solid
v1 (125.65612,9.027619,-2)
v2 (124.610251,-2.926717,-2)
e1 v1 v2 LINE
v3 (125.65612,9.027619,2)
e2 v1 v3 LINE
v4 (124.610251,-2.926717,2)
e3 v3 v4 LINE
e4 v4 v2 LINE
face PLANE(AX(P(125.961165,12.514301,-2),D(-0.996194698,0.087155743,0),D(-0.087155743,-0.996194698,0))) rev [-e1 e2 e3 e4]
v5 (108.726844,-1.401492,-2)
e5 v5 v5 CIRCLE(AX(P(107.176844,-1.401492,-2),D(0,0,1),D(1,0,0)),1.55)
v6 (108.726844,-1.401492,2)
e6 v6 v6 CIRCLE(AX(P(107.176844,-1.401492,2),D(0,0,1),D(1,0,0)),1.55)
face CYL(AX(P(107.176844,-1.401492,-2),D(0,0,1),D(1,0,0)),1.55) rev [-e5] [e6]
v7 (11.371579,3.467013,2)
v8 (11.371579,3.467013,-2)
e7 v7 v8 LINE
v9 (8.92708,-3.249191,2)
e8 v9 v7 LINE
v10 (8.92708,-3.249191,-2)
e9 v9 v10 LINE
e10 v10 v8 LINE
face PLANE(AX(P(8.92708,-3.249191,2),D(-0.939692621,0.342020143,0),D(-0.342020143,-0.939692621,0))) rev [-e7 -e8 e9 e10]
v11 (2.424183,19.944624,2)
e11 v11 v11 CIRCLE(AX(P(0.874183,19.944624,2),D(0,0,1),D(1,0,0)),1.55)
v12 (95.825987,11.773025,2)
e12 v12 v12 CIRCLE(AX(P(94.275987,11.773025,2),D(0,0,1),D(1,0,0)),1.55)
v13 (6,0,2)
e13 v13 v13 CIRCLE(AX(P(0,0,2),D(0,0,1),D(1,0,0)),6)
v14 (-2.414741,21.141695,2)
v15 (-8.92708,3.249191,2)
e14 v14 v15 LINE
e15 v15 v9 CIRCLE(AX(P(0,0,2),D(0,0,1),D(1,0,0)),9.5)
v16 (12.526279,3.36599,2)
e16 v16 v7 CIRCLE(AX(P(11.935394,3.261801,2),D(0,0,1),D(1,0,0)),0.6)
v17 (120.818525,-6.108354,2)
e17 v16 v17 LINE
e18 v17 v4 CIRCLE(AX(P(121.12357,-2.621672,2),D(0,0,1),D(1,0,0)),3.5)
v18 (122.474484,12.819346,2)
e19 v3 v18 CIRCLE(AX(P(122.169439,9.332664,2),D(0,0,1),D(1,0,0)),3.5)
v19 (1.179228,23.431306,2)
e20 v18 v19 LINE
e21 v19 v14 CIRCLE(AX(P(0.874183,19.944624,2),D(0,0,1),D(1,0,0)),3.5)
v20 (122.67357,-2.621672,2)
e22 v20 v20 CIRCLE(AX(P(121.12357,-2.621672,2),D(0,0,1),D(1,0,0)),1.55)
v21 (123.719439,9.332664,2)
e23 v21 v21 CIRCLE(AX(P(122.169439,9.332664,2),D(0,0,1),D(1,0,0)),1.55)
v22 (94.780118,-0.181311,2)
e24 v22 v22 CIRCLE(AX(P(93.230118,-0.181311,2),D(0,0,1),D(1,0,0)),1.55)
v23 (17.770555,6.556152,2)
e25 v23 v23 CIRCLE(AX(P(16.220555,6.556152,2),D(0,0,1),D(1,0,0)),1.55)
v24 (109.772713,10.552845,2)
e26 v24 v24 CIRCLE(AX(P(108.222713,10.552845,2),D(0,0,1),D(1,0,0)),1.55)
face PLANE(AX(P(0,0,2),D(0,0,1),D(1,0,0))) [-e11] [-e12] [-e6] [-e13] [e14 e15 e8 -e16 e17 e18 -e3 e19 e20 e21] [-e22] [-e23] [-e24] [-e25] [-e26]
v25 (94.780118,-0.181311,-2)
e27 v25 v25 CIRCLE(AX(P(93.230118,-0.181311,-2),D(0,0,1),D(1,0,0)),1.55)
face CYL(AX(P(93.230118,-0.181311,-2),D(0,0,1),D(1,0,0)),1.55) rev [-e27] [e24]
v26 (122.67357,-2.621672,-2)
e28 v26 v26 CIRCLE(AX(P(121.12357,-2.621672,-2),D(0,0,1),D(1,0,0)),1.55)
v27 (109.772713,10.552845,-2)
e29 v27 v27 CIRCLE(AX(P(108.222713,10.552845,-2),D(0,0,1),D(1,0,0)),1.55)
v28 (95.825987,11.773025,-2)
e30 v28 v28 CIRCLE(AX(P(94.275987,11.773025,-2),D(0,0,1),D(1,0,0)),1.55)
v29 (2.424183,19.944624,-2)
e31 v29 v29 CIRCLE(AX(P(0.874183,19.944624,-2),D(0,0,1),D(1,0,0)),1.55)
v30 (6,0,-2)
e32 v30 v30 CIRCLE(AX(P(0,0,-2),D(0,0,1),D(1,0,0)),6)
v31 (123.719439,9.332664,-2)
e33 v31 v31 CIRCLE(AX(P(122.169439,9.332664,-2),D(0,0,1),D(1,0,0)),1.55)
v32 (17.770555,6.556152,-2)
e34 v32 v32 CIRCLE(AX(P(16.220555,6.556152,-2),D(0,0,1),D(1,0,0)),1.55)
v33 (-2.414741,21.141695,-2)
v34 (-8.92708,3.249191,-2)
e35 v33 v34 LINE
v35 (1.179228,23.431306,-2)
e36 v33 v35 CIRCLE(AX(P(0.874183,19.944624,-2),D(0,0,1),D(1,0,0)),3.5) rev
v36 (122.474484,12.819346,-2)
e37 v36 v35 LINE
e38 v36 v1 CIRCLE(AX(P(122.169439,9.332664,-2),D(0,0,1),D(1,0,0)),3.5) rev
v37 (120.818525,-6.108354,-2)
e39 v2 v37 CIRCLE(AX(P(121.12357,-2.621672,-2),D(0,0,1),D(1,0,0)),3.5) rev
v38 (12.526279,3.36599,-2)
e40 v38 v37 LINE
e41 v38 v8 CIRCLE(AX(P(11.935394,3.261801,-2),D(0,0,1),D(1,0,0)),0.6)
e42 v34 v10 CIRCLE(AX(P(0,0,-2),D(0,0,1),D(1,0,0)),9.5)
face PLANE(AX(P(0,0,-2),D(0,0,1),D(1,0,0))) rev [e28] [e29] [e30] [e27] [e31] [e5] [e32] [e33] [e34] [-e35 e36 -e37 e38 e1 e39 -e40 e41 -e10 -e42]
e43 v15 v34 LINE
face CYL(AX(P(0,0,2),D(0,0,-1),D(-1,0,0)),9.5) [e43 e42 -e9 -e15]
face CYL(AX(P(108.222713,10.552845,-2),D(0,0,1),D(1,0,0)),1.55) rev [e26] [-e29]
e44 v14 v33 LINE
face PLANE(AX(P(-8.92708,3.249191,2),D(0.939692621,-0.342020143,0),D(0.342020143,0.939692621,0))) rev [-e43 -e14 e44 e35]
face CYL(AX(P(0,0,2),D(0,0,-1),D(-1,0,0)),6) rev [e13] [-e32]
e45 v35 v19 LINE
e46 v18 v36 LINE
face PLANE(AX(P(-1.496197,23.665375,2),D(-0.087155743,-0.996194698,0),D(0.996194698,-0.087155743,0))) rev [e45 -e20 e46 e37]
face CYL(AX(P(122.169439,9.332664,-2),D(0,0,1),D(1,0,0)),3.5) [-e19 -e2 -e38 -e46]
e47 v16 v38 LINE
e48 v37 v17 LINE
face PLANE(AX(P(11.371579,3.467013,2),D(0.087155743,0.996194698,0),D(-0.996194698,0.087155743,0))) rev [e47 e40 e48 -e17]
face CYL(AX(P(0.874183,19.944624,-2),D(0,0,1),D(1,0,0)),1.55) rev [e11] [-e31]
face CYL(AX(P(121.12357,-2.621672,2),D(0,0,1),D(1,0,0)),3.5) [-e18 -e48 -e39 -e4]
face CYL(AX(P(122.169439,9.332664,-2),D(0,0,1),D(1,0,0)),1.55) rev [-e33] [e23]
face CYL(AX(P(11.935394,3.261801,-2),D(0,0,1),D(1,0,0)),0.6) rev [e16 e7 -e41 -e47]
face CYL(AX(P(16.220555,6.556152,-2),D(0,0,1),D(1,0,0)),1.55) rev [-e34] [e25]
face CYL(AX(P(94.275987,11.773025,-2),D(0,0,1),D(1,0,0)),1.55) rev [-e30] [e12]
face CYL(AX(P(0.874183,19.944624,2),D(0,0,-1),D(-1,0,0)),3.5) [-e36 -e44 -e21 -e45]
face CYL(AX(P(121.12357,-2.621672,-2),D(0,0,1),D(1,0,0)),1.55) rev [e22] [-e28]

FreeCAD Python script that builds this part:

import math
import FreeCAD as App
import Part
import Sketcher
from FreeCAD import Vector
Q = App.Units.Quantity


def edges_at(feature, points):
    """Names of the edges that pass closest to the given points."""
    edges = feature.Shape.Edges
    near = lambda p: min(range(len(edges)), key=lambda i: edges[i].distToShape(Part.Vertex(*p))[0])
    return sorted({f"Edge{near(p) + 1}" for p in points})

doc = App.newDocument("Part")
body = doc.addObject("PartDesign::Body", "Body")

# Sketch on XY plane
sketch1 = body.newObject("Sketcher::SketchObject", "Sketch")
sketch1.AttachmentSupport = (doc.getObject("XY_Plane"), [""])
sketch1.MapMode = "FlatFace"
sketch1.addGeometry(Part.LineSegment(Vector(-1, 24, 0), Vector(-9, 3, 0)), False)
sketch1.addGeometry(Part.ArcOfCircle(Part.Circle(Vector(0, 0, 0), Vector(0, 0, 1), 10), math.radians(160), math.radians(340)), False)
sketch1.addGeometry(Part.LineSegment(Vector(9, -3, 0), Vector(11, 3, 0)), False)
sketch1.addGeometry(Part.LineSegment(Vector(11, 3, 0), Vector(159, -9, 0)), False)
sketch1.addGeometry(Part.ArcOfCircle(Part.Circle(Vector(160, 0, 0), Vector(0, 0, 1), 10), math.radians(-95), math.radians(85)), False)
sketch1.addGeometry(Part.LineSegment(Vector(161, 9, 0), Vector(-1, 24, 0)), False)
sketch1.addGeometry(Part.Circle(Vector(160, 0, 0), Vector(0, 0, 1), 6), False)
sketch1.addGeometry(Part.Circle(Vector(0, 0, 0), Vector(0, 0, 1), 6), False)
sketch1.addConstraint(Sketcher.Constraint("Tangent", 0, 2, 1, 1))
sketch1.addConstraint(Sketcher.Constraint("Tangent", 1, 2, 2, 1))
sketch1.addConstraint(Sketcher.Constraint("Coincident", 2, 2, 3, 1))
sketch1.addConstraint(Sketcher.Constraint("Tangent", 3, 2, 4, 1))
sketch1.addConstraint(Sketcher.Constraint("Tangent", 4, 2, 5, 1))
sketch1.addConstraint(Sketcher.Constraint("Coincident", 5, 2, 0, 1))
sketch1.addConstraint(Sketcher.Constraint("Coincident", 1, 3, -1, 1))
sketch1.addConstraint(Sketcher.Constraint("Coincident", 7, 3, -1, 1))
sketch1.addConstraint(Sketcher.Constraint("Coincident", 6, 3, 4, 3))
sketch1.addConstraint(Sketcher.Constraint("Equal", 1, 4))
sketch1.addConstraint(Sketcher.Constraint("Equal", 6, 7))
sketch1.addConstraint(Sketcher.Constraint("PointOnObject", 4, 3, -1))
sketch1.addConstraint(Sketcher.Constraint("Parallel", 0, 2))
sketch1.addConstraint(Sketcher.Constraint("Parallel", 3, 5))
sketch1.addConstraint(Sketcher.Constraint("Diameter", 6, Q("12 mm")))
sketch1.addConstraint(Sketcher.Constraint("Radius", 1, Q("9.5 mm")))
sketch1.addConstraint(Sketcher.Constraint("Angle", 0, Q("-110 deg")))
sketch1.addConstraint(Sketcher.Constraint("Angle", 3, Q("-5 deg")))
sketch1.addConstraint(Sketcher.Constraint("DistanceX", -1, 1, 4, 3, Q("160 mm")))
pad1 = body.newObject("PartDesign::Pad", "Pad")
pad1.Profile = sketch1
pad1.Length = 4
pad1.Midplane = True

# Sketch on XY plane
sketch2 = body.newObject("Sketcher::SketchObject", "Sketch001")
sketch2.AttachmentSupport = (doc.getObject("XY_Plane"), [""])
sketch2.MapMode = "FlatFace"
sketch2.AttachmentOffset = App.Placement(Vector(0, 0, 2), App.Rotation())
sketch2.addGeometry(Part.Circle(Vector(0.9, 19.9, 0), Vector(0, 0, 1), 1.6), False)
sketch2.addGeometry(Part.Circle(Vector(16.2, 6.6, 0), Vector(0, 0, 1), 1.6), False)
sketch2.addGeometry(Part.Circle(Vector(11.9, 3.3, 0), Vector(0, 0, 1), 0.6), False)
sketch2.addConstraint(Sketcher.Constraint("Equal", 0, 1))
sketch2.addConstraint(Sketcher.Constraint("Diameter", 0, Q("3.1 mm")))
sketch2.addConstraint(Sketcher.Constraint("Diameter", 2, Q("1.2 mm")))
sketch2.addConstraint(Sketcher.Constraint("DistanceY", -1, 1, 2, 3, Q("3.261801 mm")))
sketch2.addConstraint(Sketcher.Constraint("DistanceY", 1, 3, 0, 3, Q("13.388472 mm")))
sketch2.addConstraint(Sketcher.Constraint("DistanceX", 2, 3, 1, 3, Q("4.285161 mm")))
sketch2.addConstraint(Sketcher.Constraint("DistanceY", 2, 3, 1, 3, Q("3.294351 mm")))
sketch2.addConstraint(Sketcher.Constraint("DistanceX", 0, 3, 2, 3, Q("11.061211 mm")))
sketch2.addConstraint(Sketcher.Constraint("DistanceX", -1, 1, 0, 3, Q("0.874183 mm")))
pocket1 = body.newObject("PartDesign::Pocket", "Pocket")
pocket1.Profile = sketch2
pocket1.Type = "ThroughAll"
doc.recompute()

fillet = body.newObject("PartDesign::Fillet", "Fillet")
fillet.Base = (pocket1, edges_at(pocket1, [(-1.496, 23.665, 0)]))
fillet.Radius = 3.5

# Sketch on XY plane
sketch3 = body.newObject("Sketcher::SketchObject", "Sketch002")
sketch3.AttachmentSupport = (doc.getObject("XY_Plane"), [""])
sketch3.MapMode = "FlatFace"
sketch3.AttachmentOffset = App.Placement(Vector(0, 0, 2), App.Rotation())
sketch3.addGeometry(Part.LineSegment(Vector(126, 13, 0), Vector(124, -6, 0)), False)
sketch3.addGeometry(Part.LineSegment(Vector(124, -6, 0), Vector(159, -9, 0)), False)
sketch3.addGeometry(Part.ArcOfCircle(Part.Circle(Vector(160, 0, 0), Vector(0, 0, 1), 10), math.radians(-95), math.radians(85)), False)
sketch3.addGeometry(Part.LineSegment(Vector(161, 9, 0), Vector(126, 13, 0)), False)
sketch3.addConstraint(Sketcher.Constraint("Coincident", 0, 2, 1, 1))
sketch3.addConstraint(Sketcher.Constraint("Tangent", 1, 2, 2, 1))
sketch3.addConstraint(Sketcher.Constraint("Tangent", 2, 2, 3, 1))
sketch3.addConstraint(Sketcher.Constraint("Coincident", 3, 2, 0, 1))
sketch3.addConstraint(Sketcher.Constraint("PointOnObject", 2, 3, -1))
sketch3.addConstraint(Sketcher.Constraint("Perpendicular", 0, 1))
sketch3.addConstraint(Sketcher.Constraint("Parallel", 1, 3))
sketch3.addConstraint(Sketcher.Constraint("Radius", 2, Q("9.5 mm")))
sketch3.addConstraint(Sketcher.Constraint("Angle", 0, Q("-95 deg")))
sketch3.addConstraint(Sketcher.Constraint("Distance", 1, Q("35 mm")))
sketch3.addConstraint(Sketcher.Constraint("DistanceX", -1, 1, 2, 3, Q("160 mm")))
pocket2 = body.newObject("PartDesign::Pocket", "Pocket001")
pocket2.Profile = sketch3
pocket2.Type = "ThroughAll"

# Sketch on XY plane
sketch4 = body.newObject("Sketcher::SketchObject", "Sketch003")
sketch4.AttachmentSupport = (doc.getObject("XY_Plane"), [""])
sketch4.MapMode = "FlatFace"
sketch4.AttachmentOffset = App.Placement(Vector(0, 0, 2), App.Rotation())
sketch4.addGeometry(Part.Circle(Vector(122.2, 9.3, 0), Vector(0, 0, 1), 1.6), False)
sketch4.addGeometry(Part.Circle(Vector(121.1, -2.6, 0), Vector(0, 0, 1), 1.6), False)
sketch4.addGeometry(Part.Circle(Vector(94.3, 11.8, 0), Vector(0, 0, 1), 1.6), False)
sketch4.addGeometry(Part.Circle(Vector(93.2, -0.2, 0), Vector(0, 0, 1), 1.6), False)
sketch4.addGeometry(Part.Circle(Vector(108.2, 10.6, 0), Vector(0, 0, 1), 1.6), False)
sketch4.addGeometry(Part.Circle(Vector(107.2, -1.4, 0), Vector(0, 0, 1), 1.6), False)
sketch4.addConstraint(Sketcher.Constraint("Equal", 0, 1))
sketch4.addConstraint(Sketcher.Constraint("Equal", 1, 2))
sketch4.addConstraint(Sketcher.Constraint("Equal", 2, 3))
sketch4.addConstraint(Sketcher.Constraint("Equal", 3, 4))
sketch4.addConstraint(Sketcher.Constraint("Equal", 4, 5))
sketch4.addConstraint(Sketcher.Constraint("Diameter", 0, Q("3.1 mm")))
sketch4.addConstraint(Sketcher.Constraint("DistanceX", -1, 1, 0, 3, Q("122.169439 mm")))
sketch4.addConstraint(Sketcher.Constraint("DistanceX", -1, 1, 1, 3, Q("121.12357 mm")))
sketch4.addConstraint(Sketcher.Constraint("DistanceX", -1, 1, 3, 3, Q("93.230118 mm")))
sketch4.addConstraint(Sketcher.Constraint("DistanceY", 3, 3, -1, 1, Q("0.181311 mm")))
sketch4.addConstraint(Sketcher.Constraint("DistanceY", 5, 3, -1, 1, Q("1.401492 mm")))
sketch4.addConstraint(Sketcher.Constraint("DistanceX", 2, 3, 0, 3, Q("27.893452 mm")))
sketch4.addConstraint(Sketcher.Constraint("DistanceY", 0, 3, 2, 3, Q("2.440361 mm")))
sketch4.addConstraint(Sketcher.Constraint("DistanceY", 1, 3, 3, 3, Q("2.440361 mm")))
sketch4.addConstraint(Sketcher.Constraint("DistanceY", 0, 3, 4, 3, Q("1.22018 mm")))
sketch4.addConstraint(Sketcher.Constraint("DistanceX", 5, 3, 4, 3, Q("1.045869 mm")))
sketch4.addConstraint(Sketcher.Constraint("DistanceY", -1, 1, 0, 3, Q("9.332664 mm")))
sketch4.addConstraint(Sketcher.Constraint("DistanceX", -1, 1, 4, 3, Q("108.222713 mm")))
pocket3 = body.newObject("PartDesign::Pocket", "Pocket002")
pocket3.Profile = sketch4
pocket3.Type = "ThroughAll"
doc.recompute()

fillet2 = body.newObject("PartDesign::Fillet", "Fillet001")
fillet2.Base = (pocket3, edges_at(pocket3, [(125.961, 12.514, 0), (124.305, -6.413, 0)]))
fillet2.Radius = 3.5

doc.recompute()
